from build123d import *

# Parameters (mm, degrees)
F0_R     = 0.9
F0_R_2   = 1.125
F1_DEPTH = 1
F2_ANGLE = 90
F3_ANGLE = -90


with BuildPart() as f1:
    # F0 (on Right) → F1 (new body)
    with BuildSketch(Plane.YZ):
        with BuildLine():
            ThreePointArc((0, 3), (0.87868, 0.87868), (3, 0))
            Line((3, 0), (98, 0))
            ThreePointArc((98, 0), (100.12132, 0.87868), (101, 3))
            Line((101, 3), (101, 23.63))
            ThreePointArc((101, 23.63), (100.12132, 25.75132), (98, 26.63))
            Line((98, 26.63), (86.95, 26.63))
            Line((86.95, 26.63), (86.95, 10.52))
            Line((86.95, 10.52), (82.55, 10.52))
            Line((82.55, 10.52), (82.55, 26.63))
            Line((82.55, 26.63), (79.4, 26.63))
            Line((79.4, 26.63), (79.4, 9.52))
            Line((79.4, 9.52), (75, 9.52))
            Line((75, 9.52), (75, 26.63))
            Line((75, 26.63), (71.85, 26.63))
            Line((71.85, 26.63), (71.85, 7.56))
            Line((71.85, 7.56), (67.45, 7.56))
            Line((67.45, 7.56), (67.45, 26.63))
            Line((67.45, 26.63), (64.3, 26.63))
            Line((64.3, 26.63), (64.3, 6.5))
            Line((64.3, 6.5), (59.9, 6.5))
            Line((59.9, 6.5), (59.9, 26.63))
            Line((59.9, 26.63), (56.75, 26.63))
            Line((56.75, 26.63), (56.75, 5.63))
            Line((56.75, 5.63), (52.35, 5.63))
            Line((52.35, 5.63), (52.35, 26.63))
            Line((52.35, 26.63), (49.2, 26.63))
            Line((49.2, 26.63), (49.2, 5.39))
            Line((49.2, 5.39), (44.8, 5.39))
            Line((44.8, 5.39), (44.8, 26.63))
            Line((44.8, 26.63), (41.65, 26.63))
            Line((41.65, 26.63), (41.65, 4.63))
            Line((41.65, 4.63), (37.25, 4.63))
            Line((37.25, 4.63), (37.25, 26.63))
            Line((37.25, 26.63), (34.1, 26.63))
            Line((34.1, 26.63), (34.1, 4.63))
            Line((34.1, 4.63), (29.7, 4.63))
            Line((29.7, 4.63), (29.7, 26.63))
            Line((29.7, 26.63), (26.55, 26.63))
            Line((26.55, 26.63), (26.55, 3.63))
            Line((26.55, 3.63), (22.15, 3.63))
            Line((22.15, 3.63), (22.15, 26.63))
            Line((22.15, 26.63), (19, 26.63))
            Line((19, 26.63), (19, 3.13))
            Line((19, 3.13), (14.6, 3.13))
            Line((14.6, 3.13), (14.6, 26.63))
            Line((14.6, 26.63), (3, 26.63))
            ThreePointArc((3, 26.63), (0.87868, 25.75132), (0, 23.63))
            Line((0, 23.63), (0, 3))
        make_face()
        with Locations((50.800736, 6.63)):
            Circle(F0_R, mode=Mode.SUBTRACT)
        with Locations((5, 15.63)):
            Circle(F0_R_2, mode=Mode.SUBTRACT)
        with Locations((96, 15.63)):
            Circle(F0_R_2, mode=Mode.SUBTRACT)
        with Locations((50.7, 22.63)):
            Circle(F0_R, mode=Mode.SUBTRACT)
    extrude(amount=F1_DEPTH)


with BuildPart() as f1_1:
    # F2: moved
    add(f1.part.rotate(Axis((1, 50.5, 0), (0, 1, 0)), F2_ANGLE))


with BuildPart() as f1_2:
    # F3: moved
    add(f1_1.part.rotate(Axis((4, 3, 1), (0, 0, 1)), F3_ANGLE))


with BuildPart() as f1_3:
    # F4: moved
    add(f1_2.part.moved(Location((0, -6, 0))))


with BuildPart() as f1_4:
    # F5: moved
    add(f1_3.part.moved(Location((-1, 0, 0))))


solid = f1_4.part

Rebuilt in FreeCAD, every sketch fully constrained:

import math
import FreeCAD as App
import Part
import Sketcher

V = App.Vector
Q = App.Units.Quantity

doc = App.newDocument("Part")
body = doc.addObject("PartDesign::Body", "Body")

sketch1 = doc.addObject("Sketcher::SketchObject", "Sketch")
body.addObject(sketch1)
sketch1.AttachmentSupport = (doc.YZ_Plane, [""])
sketch1.MapMode = "FlatFace"
sketch1.addGeometry([
    Part.ArcOfCircle(Part.Circle(V(3.000001, 3.000001, 0), V(0, 0, 1), 3.000001), math.radians(-179.999978), math.radians(-90.000022)),
    Part.LineSegment(V(3, 0, 0), V(98, 0, 0)),
    Part.ArcOfCircle(Part.Circle(V(97.999999, 3.000001, 0), V(0, 0, 1), 3.000001), math.radians(-89.999978), math.radians(-0.000022)),
    Part.LineSegment(V(101, 3, 0), V(101, 23.63, 0)),
    Part.ArcOfCircle(Part.Circle(V(97.999999, 23.629999, 0), V(0, 0, 1), 3.000001), math.radians(0.000022), math.radians(89.999978)),
    Part.LineSegment(V(98, 26.63, 0), V(86.95, 26.63, 0)),
    Part.LineSegment(V(86.95, 26.63, 0), V(86.95, 10.52, 0)),
    Part.LineSegment(V(86.95, 10.52, 0), V(82.55, 10.52, 0)),
    Part.LineSegment(V(82.55, 10.52, 0), V(82.55, 26.63, 0)),
    Part.LineSegment(V(82.55, 26.63, 0), V(79.4, 26.63, 0)),
    Part.LineSegment(V(79.4, 26.63, 0), V(79.4, 9.52, 0)),
    Part.LineSegment(V(79.4, 9.52, 0), V(75, 9.52, 0)),
    Part.LineSegment(V(75, 9.52, 0), V(75, 26.63, 0)),
    Part.LineSegment(V(75, 26.63, 0), V(71.85, 26.63, 0)),
    Part.LineSegment(V(71.85, 26.63, 0), V(71.85, 7.56, 0)),
    Part.LineSegment(V(71.85, 7.56, 0), V(67.45, 7.56, 0)),
    Part.LineSegment(V(67.45, 7.56, 0), V(67.45, 26.63, 0)),
    Part.LineSegment(V(67.45, 26.63, 0), V(64.3, 26.63, 0)),
    Part.LineSegment(V(64.3, 26.63, 0), V(64.3, 6.5, 0)),
    Part.LineSegment(V(64.3, 6.5, 0), V(59.9, 6.5, 0)),
    Part.LineSegment(V(59.9, 6.5, 0), V(59.9, 26.63, 0)),
    Part.LineSegment(V(59.9, 26.63, 0), V(56.75, 26.63, 0)),
    Part.LineSegment(V(56.75, 26.63, 0), V(56.75, 5.63, 0)),
    Part.LineSegment(V(56.75, 5.63, 0), V(52.35, 5.63, 0)),
    Part.LineSegment(V(52.35, 5.63, 0), V(52.35, 26.63, 0)),
    Part.LineSegment(V(52.35, 26.63, 0), V(49.2, 26.63, 0)),
    Part.LineSegment(V(49.2, 26.63, 0), V(49.2, 5.39, 0)),
    Part.LineSegment(V(49.2, 5.39, 0), V(44.8, 5.39, 0)),
    Part.LineSegment(V(44.8, 5.39, 0), V(44.8, 26.63, 0)),
    Part.LineSegment(V(44.8, 26.63, 0), V(41.65, 26.63, 0)),
    Part.LineSegment(V(41.65, 26.63, 0), V(41.65, 4.63, 0)),
    Part.LineSegment(V(41.65, 4.63, 0), V(37.25, 4.63, 0)),
    Part.LineSegment(V(37.25, 4.63, 0), V(37.25, 26.63, 0)),
    Part.LineSegment(V(37.25, 26.63, 0), V(34.1, 26.63, 0)),
    Part.LineSegment(V(34.1, 26.63, 0), V(34.1, 4.63, 0)),
    Part.LineSegment(V(34.1, 4.63, 0), V(29.7, 4.63, 0)),
    Part.LineSegment(V(29.7, 4.63, 0), V(29.7, 26.63, 0)),
    Part.LineSegment(V(29.7, 26.63, 0), V(26.55, 26.63, 0)),
    Part.LineSegment(V(26.55, 26.63, 0), V(26.55, 3.63, 0)),
    Part.LineSegment(V(26.55, 3.63, 0), V(22.15, 3.63, 0)),
    Part.LineSegment(V(22.15, 3.63, 0), V(22.15, 26.63, 0)),
    Part.LineSegment(V(22.15, 26.63, 0), V(19, 26.63, 0)),
    Part.LineSegment(V(19, 26.63, 0), V(19, 3.13, 0)),
    Part.LineSegment(V(19, 3.13, 0), V(14.6, 3.13, 0)),
    Part.LineSegment(V(14.6, 3.13, 0), V(14.6, 26.63, 0)),
    Part.LineSegment(V(14.6, 26.63, 0), V(3, 26.63, 0)),
    Part.ArcOfCircle(Part.Circle(V(3.000001, 23.629999, 0), V(0, 0, 1), 3.000001), math.radians(90.000022), math.radians(179.999978)),
    Part.LineSegment(V(0, 23.63, 0), V(0, 3, 0)),
    Part.Circle(V(50.800736, 6.63, 0), V(0, 0, 1), 0.9),
    Part.Circle(V(5, 15.63, 0), V(0, 0, 1), 1.125),
    Part.Circle(V(96, 15.63, 0), V(0, 0, 1), 1.125),
    Part.Circle(V(50.7, 22.63, 0), V(0, 0, 1), 0.9),
], False)
sketch1.addConstraint([
    Sketcher.Constraint("Tangent", 0, 2, 1, 1),
    Sketcher.Constraint("Tangent", 1, 2, 2, 1),
    Sketcher.Constraint("Tangent", 2, 2, 3, 1),
    Sketcher.Constraint("Tangent", 3, 2, 4, 1),
    Sketcher.Constraint("Tangent", 4, 2, 5, 1),
    Sketcher.Constraint("Coincident", 5, 2, 6, 1),
    Sketcher.Constraint("Coincident", 6, 2, 7, 1),
    Sketcher.Constraint("Coincident", 7, 2, 8, 1),
    Sketcher.Constraint("Coincident", 8, 2, 9, 1),
    Sketcher.Constraint("Coincident", 9, 2, 10, 1),
    Sketcher.Constraint("Coincident", 10, 2, 11, 1),
    Sketcher.Constraint("Coincident", 11, 2, 12, 1),
    Sketcher.Constraint("Coincident", 12, 2, 13, 1),
    Sketcher.Constraint("Coincident", 13, 2, 14, 1),
    Sketcher.Constraint("Coincident", 14, 2, 15, 1),
    Sketcher.Constraint("Coincident", 15, 2, 16, 1),
    Sketcher.Constraint("Coincident", 16, 2, 17, 1),
    Sketcher.Constraint("Coincident", 17, 2, 18, 1),
    Sketcher.Constraint("Coincident", 18, 2, 19, 1),
    Sketcher.Constraint("Coincident", 19, 2, 20, 1),
    Sketcher.Constraint("Coincident", 20, 2, 21, 1),
    Sketcher.Constraint("Coincident", 21, 2, 22, 1),
    Sketcher.Constraint("Coincident", 22, 2, 23, 1),
    Sketcher.Constraint("Coincident", 23, 2, 24, 1),
    Sketcher.Constraint("Coincident", 24, 2, 25, 1),
    Sketcher.Constraint("Coincident", 25, 2, 26, 1),
    Sketcher.Constraint("Coincident", 26, 2, 27, 1),
    Sketcher.Constraint("Coincident", 27, 2, 28, 1),
    Sketcher.Constraint("Coincident", 28, 2, 29, 1),
    Sketcher.Constraint("Coincident", 29, 2, 30, 1),
    Sketcher.Constraint("Coincident", 30, 2, 31, 1),
    Sketcher.Constraint("Coincident", 31, 2, 32, 1),
    Sketcher.Constraint("Coincident", 32, 2, 33, 1),
    Sketcher.Constraint("Coincident", 33, 2, 34, 1),
    Sketcher.Constraint("Coincident", 34, 2, 35, 1),
    Sketcher.Constraint("Coincident", 35, 2, 36, 1),
    Sketcher.Constraint("Coincident", 36, 2, 37, 1),
    Sketcher.Constraint("Coincident", 37, 2, 38, 1),
    Sketcher.Constraint("Coincident", 38, 2, 39, 1),
    Sketcher.Constraint("Coincident", 39, 2, 40, 1),
    Sketcher.Constraint("Coincident", 40, 2, 41, 1),
    Sketcher.Constraint("Coincident", 41, 2, 42, 1),
    Sketcher.Constraint("Coincident", 42, 2, 43, 1),
    Sketcher.Constraint("Coincident", 43, 2, 44, 1),
    Sketcher.Constraint("Coincident", 44, 2, 45, 1),
    Sketcher.Constraint("Tangent", 45, 2, 46, 1),
    Sketcher.Constraint("Tangent", 46, 2, 47, 1),
    Sketcher.Constraint("Tangent", 47, 2, 0, 1),
    Sketcher.Constraint("Horizontal", 1),
    Sketcher.Constraint("Vertical", 3),
    Sketcher.Constraint("Horizontal", 5),
    Sketcher.Constraint("Vertical", 6),
    Sketcher.Constraint("Horizontal", 7),
    Sketcher.Constraint("Vertical", 8),
    Sketcher.Constraint("Horizontal", 9),
    Sketcher.Constraint("Vertical", 10),
    Sketcher.Constraint("Horizontal", 11),
    Sketcher.Constraint("Vertical", 12),
    Sketcher.Constraint("Horizontal", 13),
    Sketcher.Constraint("Vertical", 14),
    Sketcher.Constraint("Horizontal", 15),
    Sketcher.Constraint("Vertical", 16),
    Sketcher.Constraint("Horizontal", 17),
    Sketcher.Constraint("Vertical", 18),
    Sketcher.Constraint("Horizontal", 19),
    Sketcher.Constraint("Vertical", 20),
    Sketcher.Constraint("Horizontal", 21),
    Sketcher.Constraint("Vertical", 22),
    Sketcher.Constraint("Horizontal", 23),
    Sketcher.Constraint("Vertical", 24),
    Sketcher.Constraint("Horizontal", 25),
    Sketcher.Constraint("Vertical", 26),
    Sketcher.Constraint("Horizontal", 27),
    Sketcher.Constraint("Vertical", 28),
    Sketcher.Constraint("Horizontal", 29),
    Sketcher.Constraint("Vertical", 30),
    Sketcher.Constraint("Horizontal", 31),
    Sketcher.Constraint("Vertical", 32),
    Sketcher.Constraint("Horizontal", 33),
    Sketcher.Constraint("Vertical", 34),
    Sketcher.Constraint("Horizontal", 35),
    Sketcher.Constraint("Vertical", 36),
    Sketcher.Constraint("Horizontal", 37),
    Sketcher.Constraint("Vertical", 38),
    Sketcher.Constraint("Horizontal", 39),
    Sketcher.Constraint("Vertical", 40),
    Sketcher.Constraint("Horizontal", 41),
    Sketcher.Constraint("Vertical", 42),
    Sketcher.Constraint("Horizontal", 43),
    Sketcher.Constraint("Vertical", 44),
    Sketcher.Constraint("Horizontal", 45),
    Sketcher.Constraint("Vertical", 47),
    Sketcher.Constraint("Equal", 0, 2),
    Sketcher.Constraint("Equal", 2, 4),
    Sketcher.Constraint("Equal", 4, 46),
    Sketcher.Constraint("Equal", 49, 50),
    Sketcher.Constraint("Equal", 48, 51),
    Sketcher.Constraint("PointOnObject", 0, 2, -1),
    Sketcher.Constraint("PointOnObject", 46, 2, -2),
    Sketcher.Constraint("Horizontal", 4, 3, 46, 3),
    Sketcher.Constraint("Horizontal", 49, 3, 50, 3),
    Sketcher.Constraint("Horizontal", 5, 2, 8, 2),
    Sketcher.Constraint("Horizontal", 9, 2, 12, 2),
    Sketcher.Constraint("Horizontal", 13, 2, 16, 2),
    Sketcher.Constraint("Horizontal", 17, 2, 20, 2),
    Sketcher.Constraint("Horizontal", 21, 2, 24, 2),
    Sketcher.Constraint("Horizontal", 25, 2, 28, 2),
    Sketcher.Constraint("Horizontal", 29, 2, 32, 2),
    Sketcher.Constraint("Horizontal", 31, 2, 34, 2),
    Sketcher.Constraint("Horizontal", 33, 2, 36, 2),
    Sketcher.Constraint("Horizontal", 37, 2, 40, 2),
    Sketcher.Constraint("Equal", 7, 11),
    Sketcher.Constraint("Equal", 9, 13),
    Sketcher.Constraint("Equal", 11, 15),
    Sketcher.Constraint("Equal", 13, 17),
    Sketcher.Constraint("Equal", 15, 19),
    Sketcher.Constraint("Equal", 17, 21),
    Sketcher.Constraint("Equal", 19, 23),
    Sketcher.Constraint("Equal", 21, 25),
    Sketcher.Constraint("Equal", 23, 27),
    Sketcher.Constraint("Equal", 25, 29),
    Sketcher.Constraint("Equal", 27, 31),
    Sketcher.Constraint("Equal", 29, 33),
    Sketcher.Constraint("Equal", 31, 35),
    Sketcher.Constraint("Equal", 33, 37),
    Sketcher.Constraint("Equal", 35, 39),
    Sketcher.Constraint("Equal", 37, 41),
    Sketcher.Constraint("Equal", 39, 43),
    Sketcher.Constraint("Radius", 0, Q("3.000001 mm")),
    Sketcher.Constraint("Diameter", 48, Q("1.8 mm")),
    Sketcher.Constraint("Diameter", 49, Q("2.25 mm")),
    Sketcher.Constraint("DistanceX", 1, 1, 1, 2, Q("95 mm")),
    Sketcher.Constraint("DistanceY", 22, 2, 22, 1, Q("21 mm")),
    Sketcher.Constraint("DistanceY", 30, 2, 30, 1, Q("22 mm")),
    Sketcher.Constraint("DistanceY", 38, 2, 38, 1, Q("23 mm")),
    Sketcher.Constraint("DistanceX", 7, 2, 7, 1, Q("4.4 mm")),
    Sketcher.Constraint("DistanceX", 45, 2, 45, 1, Q("11.6 mm")),
    Sketcher.Constraint("DistanceY", 42, 2, 42, 1, Q("23.5 mm")),
    Sketcher.Constraint("DistanceX", -1, 1, 49, 3, Q("5 mm")),
    Sketcher.Constraint("DistanceX", -1, 1, 50, 3, Q("96 mm")),
    Sketcher.Constraint("DistanceX", -1, 1, 11, 2, Q("75 mm")),
    Sketcher.Constraint("DistanceY", 48, 3, 4, 3, Q("16.999999 mm")),
    Sketcher.Constraint("DistanceY", 49, 3, 46, 3, Q("7.999999 mm")),
    Sketcher.Constraint("DistanceY", 48, 3, 51, 3, Q("16 mm")),
    Sketcher.Constraint("DistanceY", 10, 2, 7, 2, Q("1 mm")),
    Sketcher.Constraint("DistanceY", 3, 1, 3, 2, Q("20.63 mm")),
    Sketcher.Constraint("DistanceY", 6, 2, 6, 1, Q("16.11 mm")),
    Sketcher.Constraint("DistanceY", 14, 2, 14, 1, Q("19.07 mm")),
    Sketcher.Constraint("DistanceY", 18, 2, 18, 1, Q("20.13 mm")),
    Sketcher.Constraint("DistanceY", 26, 2, 26, 1, Q("21.24 mm")),
    Sketcher.Constraint("DistanceX", -1, 1, 51, 3, Q("50.7 mm")),
    Sketcher.Constraint("DistanceX", -1, 1, 48, 3, Q("50.800736 mm")),
])
pad1 = doc.addObject("PartDesign::Pad", "Pad")
body.addObject(pad1)
pad1.Profile = sketch1
pad1.Length = 1
body2 = doc.addObject("PartDesign::Body", "Body001")
doc.recompute()

body.Placement = App.Placement(V(1, 0, 1), App.Rotation(V(0, 1, 0), 90))
boolean = doc.addObject("PartDesign::Boolean", "Boolean")
body2.addObject(boolean)
boolean.Type = "Fuse"
boolean.addObjects([body])
body3 = doc.addObject("PartDesign::Body", "Body002")
doc.recompute()

body2.Placement = App.Placement(V(1, 7, 0), App.Rotation(V(0, 0, 1), 270))
boolean2 = doc.addObject("PartDesign::Boolean", "Boolean001")
body3.addObject(boolean2)
boolean2.Type = "Fuse"
boolean2.addObjects([body2])
body4 = doc.addObject("PartDesign::Body", "Body003")
doc.recompute()

body3.Placement = App.Placement(V(0, -6, 0), App.Rotation(V(0, 0, 1), 0))
boolean3 = doc.addObject("PartDesign::Boolean", "Boolean002")
body4.addObject(boolean3)
boolean3.Type = "Fuse"
boolean3.addObjects([body3])
body5 = doc.addObject("PartDesign::Body", "Body004")
doc.recompute()

body4.Placement = App.Placement(V(-1, 0, 0), App.Rotation(V(0, 0, 1), 0))
boolean4 = doc.addObject("PartDesign::Boolean", "Boolean003")
body5.addObject(boolean4)
boolean4.Type = "Fuse"
boolean4.addObjects([body4])

doc.recompute()
